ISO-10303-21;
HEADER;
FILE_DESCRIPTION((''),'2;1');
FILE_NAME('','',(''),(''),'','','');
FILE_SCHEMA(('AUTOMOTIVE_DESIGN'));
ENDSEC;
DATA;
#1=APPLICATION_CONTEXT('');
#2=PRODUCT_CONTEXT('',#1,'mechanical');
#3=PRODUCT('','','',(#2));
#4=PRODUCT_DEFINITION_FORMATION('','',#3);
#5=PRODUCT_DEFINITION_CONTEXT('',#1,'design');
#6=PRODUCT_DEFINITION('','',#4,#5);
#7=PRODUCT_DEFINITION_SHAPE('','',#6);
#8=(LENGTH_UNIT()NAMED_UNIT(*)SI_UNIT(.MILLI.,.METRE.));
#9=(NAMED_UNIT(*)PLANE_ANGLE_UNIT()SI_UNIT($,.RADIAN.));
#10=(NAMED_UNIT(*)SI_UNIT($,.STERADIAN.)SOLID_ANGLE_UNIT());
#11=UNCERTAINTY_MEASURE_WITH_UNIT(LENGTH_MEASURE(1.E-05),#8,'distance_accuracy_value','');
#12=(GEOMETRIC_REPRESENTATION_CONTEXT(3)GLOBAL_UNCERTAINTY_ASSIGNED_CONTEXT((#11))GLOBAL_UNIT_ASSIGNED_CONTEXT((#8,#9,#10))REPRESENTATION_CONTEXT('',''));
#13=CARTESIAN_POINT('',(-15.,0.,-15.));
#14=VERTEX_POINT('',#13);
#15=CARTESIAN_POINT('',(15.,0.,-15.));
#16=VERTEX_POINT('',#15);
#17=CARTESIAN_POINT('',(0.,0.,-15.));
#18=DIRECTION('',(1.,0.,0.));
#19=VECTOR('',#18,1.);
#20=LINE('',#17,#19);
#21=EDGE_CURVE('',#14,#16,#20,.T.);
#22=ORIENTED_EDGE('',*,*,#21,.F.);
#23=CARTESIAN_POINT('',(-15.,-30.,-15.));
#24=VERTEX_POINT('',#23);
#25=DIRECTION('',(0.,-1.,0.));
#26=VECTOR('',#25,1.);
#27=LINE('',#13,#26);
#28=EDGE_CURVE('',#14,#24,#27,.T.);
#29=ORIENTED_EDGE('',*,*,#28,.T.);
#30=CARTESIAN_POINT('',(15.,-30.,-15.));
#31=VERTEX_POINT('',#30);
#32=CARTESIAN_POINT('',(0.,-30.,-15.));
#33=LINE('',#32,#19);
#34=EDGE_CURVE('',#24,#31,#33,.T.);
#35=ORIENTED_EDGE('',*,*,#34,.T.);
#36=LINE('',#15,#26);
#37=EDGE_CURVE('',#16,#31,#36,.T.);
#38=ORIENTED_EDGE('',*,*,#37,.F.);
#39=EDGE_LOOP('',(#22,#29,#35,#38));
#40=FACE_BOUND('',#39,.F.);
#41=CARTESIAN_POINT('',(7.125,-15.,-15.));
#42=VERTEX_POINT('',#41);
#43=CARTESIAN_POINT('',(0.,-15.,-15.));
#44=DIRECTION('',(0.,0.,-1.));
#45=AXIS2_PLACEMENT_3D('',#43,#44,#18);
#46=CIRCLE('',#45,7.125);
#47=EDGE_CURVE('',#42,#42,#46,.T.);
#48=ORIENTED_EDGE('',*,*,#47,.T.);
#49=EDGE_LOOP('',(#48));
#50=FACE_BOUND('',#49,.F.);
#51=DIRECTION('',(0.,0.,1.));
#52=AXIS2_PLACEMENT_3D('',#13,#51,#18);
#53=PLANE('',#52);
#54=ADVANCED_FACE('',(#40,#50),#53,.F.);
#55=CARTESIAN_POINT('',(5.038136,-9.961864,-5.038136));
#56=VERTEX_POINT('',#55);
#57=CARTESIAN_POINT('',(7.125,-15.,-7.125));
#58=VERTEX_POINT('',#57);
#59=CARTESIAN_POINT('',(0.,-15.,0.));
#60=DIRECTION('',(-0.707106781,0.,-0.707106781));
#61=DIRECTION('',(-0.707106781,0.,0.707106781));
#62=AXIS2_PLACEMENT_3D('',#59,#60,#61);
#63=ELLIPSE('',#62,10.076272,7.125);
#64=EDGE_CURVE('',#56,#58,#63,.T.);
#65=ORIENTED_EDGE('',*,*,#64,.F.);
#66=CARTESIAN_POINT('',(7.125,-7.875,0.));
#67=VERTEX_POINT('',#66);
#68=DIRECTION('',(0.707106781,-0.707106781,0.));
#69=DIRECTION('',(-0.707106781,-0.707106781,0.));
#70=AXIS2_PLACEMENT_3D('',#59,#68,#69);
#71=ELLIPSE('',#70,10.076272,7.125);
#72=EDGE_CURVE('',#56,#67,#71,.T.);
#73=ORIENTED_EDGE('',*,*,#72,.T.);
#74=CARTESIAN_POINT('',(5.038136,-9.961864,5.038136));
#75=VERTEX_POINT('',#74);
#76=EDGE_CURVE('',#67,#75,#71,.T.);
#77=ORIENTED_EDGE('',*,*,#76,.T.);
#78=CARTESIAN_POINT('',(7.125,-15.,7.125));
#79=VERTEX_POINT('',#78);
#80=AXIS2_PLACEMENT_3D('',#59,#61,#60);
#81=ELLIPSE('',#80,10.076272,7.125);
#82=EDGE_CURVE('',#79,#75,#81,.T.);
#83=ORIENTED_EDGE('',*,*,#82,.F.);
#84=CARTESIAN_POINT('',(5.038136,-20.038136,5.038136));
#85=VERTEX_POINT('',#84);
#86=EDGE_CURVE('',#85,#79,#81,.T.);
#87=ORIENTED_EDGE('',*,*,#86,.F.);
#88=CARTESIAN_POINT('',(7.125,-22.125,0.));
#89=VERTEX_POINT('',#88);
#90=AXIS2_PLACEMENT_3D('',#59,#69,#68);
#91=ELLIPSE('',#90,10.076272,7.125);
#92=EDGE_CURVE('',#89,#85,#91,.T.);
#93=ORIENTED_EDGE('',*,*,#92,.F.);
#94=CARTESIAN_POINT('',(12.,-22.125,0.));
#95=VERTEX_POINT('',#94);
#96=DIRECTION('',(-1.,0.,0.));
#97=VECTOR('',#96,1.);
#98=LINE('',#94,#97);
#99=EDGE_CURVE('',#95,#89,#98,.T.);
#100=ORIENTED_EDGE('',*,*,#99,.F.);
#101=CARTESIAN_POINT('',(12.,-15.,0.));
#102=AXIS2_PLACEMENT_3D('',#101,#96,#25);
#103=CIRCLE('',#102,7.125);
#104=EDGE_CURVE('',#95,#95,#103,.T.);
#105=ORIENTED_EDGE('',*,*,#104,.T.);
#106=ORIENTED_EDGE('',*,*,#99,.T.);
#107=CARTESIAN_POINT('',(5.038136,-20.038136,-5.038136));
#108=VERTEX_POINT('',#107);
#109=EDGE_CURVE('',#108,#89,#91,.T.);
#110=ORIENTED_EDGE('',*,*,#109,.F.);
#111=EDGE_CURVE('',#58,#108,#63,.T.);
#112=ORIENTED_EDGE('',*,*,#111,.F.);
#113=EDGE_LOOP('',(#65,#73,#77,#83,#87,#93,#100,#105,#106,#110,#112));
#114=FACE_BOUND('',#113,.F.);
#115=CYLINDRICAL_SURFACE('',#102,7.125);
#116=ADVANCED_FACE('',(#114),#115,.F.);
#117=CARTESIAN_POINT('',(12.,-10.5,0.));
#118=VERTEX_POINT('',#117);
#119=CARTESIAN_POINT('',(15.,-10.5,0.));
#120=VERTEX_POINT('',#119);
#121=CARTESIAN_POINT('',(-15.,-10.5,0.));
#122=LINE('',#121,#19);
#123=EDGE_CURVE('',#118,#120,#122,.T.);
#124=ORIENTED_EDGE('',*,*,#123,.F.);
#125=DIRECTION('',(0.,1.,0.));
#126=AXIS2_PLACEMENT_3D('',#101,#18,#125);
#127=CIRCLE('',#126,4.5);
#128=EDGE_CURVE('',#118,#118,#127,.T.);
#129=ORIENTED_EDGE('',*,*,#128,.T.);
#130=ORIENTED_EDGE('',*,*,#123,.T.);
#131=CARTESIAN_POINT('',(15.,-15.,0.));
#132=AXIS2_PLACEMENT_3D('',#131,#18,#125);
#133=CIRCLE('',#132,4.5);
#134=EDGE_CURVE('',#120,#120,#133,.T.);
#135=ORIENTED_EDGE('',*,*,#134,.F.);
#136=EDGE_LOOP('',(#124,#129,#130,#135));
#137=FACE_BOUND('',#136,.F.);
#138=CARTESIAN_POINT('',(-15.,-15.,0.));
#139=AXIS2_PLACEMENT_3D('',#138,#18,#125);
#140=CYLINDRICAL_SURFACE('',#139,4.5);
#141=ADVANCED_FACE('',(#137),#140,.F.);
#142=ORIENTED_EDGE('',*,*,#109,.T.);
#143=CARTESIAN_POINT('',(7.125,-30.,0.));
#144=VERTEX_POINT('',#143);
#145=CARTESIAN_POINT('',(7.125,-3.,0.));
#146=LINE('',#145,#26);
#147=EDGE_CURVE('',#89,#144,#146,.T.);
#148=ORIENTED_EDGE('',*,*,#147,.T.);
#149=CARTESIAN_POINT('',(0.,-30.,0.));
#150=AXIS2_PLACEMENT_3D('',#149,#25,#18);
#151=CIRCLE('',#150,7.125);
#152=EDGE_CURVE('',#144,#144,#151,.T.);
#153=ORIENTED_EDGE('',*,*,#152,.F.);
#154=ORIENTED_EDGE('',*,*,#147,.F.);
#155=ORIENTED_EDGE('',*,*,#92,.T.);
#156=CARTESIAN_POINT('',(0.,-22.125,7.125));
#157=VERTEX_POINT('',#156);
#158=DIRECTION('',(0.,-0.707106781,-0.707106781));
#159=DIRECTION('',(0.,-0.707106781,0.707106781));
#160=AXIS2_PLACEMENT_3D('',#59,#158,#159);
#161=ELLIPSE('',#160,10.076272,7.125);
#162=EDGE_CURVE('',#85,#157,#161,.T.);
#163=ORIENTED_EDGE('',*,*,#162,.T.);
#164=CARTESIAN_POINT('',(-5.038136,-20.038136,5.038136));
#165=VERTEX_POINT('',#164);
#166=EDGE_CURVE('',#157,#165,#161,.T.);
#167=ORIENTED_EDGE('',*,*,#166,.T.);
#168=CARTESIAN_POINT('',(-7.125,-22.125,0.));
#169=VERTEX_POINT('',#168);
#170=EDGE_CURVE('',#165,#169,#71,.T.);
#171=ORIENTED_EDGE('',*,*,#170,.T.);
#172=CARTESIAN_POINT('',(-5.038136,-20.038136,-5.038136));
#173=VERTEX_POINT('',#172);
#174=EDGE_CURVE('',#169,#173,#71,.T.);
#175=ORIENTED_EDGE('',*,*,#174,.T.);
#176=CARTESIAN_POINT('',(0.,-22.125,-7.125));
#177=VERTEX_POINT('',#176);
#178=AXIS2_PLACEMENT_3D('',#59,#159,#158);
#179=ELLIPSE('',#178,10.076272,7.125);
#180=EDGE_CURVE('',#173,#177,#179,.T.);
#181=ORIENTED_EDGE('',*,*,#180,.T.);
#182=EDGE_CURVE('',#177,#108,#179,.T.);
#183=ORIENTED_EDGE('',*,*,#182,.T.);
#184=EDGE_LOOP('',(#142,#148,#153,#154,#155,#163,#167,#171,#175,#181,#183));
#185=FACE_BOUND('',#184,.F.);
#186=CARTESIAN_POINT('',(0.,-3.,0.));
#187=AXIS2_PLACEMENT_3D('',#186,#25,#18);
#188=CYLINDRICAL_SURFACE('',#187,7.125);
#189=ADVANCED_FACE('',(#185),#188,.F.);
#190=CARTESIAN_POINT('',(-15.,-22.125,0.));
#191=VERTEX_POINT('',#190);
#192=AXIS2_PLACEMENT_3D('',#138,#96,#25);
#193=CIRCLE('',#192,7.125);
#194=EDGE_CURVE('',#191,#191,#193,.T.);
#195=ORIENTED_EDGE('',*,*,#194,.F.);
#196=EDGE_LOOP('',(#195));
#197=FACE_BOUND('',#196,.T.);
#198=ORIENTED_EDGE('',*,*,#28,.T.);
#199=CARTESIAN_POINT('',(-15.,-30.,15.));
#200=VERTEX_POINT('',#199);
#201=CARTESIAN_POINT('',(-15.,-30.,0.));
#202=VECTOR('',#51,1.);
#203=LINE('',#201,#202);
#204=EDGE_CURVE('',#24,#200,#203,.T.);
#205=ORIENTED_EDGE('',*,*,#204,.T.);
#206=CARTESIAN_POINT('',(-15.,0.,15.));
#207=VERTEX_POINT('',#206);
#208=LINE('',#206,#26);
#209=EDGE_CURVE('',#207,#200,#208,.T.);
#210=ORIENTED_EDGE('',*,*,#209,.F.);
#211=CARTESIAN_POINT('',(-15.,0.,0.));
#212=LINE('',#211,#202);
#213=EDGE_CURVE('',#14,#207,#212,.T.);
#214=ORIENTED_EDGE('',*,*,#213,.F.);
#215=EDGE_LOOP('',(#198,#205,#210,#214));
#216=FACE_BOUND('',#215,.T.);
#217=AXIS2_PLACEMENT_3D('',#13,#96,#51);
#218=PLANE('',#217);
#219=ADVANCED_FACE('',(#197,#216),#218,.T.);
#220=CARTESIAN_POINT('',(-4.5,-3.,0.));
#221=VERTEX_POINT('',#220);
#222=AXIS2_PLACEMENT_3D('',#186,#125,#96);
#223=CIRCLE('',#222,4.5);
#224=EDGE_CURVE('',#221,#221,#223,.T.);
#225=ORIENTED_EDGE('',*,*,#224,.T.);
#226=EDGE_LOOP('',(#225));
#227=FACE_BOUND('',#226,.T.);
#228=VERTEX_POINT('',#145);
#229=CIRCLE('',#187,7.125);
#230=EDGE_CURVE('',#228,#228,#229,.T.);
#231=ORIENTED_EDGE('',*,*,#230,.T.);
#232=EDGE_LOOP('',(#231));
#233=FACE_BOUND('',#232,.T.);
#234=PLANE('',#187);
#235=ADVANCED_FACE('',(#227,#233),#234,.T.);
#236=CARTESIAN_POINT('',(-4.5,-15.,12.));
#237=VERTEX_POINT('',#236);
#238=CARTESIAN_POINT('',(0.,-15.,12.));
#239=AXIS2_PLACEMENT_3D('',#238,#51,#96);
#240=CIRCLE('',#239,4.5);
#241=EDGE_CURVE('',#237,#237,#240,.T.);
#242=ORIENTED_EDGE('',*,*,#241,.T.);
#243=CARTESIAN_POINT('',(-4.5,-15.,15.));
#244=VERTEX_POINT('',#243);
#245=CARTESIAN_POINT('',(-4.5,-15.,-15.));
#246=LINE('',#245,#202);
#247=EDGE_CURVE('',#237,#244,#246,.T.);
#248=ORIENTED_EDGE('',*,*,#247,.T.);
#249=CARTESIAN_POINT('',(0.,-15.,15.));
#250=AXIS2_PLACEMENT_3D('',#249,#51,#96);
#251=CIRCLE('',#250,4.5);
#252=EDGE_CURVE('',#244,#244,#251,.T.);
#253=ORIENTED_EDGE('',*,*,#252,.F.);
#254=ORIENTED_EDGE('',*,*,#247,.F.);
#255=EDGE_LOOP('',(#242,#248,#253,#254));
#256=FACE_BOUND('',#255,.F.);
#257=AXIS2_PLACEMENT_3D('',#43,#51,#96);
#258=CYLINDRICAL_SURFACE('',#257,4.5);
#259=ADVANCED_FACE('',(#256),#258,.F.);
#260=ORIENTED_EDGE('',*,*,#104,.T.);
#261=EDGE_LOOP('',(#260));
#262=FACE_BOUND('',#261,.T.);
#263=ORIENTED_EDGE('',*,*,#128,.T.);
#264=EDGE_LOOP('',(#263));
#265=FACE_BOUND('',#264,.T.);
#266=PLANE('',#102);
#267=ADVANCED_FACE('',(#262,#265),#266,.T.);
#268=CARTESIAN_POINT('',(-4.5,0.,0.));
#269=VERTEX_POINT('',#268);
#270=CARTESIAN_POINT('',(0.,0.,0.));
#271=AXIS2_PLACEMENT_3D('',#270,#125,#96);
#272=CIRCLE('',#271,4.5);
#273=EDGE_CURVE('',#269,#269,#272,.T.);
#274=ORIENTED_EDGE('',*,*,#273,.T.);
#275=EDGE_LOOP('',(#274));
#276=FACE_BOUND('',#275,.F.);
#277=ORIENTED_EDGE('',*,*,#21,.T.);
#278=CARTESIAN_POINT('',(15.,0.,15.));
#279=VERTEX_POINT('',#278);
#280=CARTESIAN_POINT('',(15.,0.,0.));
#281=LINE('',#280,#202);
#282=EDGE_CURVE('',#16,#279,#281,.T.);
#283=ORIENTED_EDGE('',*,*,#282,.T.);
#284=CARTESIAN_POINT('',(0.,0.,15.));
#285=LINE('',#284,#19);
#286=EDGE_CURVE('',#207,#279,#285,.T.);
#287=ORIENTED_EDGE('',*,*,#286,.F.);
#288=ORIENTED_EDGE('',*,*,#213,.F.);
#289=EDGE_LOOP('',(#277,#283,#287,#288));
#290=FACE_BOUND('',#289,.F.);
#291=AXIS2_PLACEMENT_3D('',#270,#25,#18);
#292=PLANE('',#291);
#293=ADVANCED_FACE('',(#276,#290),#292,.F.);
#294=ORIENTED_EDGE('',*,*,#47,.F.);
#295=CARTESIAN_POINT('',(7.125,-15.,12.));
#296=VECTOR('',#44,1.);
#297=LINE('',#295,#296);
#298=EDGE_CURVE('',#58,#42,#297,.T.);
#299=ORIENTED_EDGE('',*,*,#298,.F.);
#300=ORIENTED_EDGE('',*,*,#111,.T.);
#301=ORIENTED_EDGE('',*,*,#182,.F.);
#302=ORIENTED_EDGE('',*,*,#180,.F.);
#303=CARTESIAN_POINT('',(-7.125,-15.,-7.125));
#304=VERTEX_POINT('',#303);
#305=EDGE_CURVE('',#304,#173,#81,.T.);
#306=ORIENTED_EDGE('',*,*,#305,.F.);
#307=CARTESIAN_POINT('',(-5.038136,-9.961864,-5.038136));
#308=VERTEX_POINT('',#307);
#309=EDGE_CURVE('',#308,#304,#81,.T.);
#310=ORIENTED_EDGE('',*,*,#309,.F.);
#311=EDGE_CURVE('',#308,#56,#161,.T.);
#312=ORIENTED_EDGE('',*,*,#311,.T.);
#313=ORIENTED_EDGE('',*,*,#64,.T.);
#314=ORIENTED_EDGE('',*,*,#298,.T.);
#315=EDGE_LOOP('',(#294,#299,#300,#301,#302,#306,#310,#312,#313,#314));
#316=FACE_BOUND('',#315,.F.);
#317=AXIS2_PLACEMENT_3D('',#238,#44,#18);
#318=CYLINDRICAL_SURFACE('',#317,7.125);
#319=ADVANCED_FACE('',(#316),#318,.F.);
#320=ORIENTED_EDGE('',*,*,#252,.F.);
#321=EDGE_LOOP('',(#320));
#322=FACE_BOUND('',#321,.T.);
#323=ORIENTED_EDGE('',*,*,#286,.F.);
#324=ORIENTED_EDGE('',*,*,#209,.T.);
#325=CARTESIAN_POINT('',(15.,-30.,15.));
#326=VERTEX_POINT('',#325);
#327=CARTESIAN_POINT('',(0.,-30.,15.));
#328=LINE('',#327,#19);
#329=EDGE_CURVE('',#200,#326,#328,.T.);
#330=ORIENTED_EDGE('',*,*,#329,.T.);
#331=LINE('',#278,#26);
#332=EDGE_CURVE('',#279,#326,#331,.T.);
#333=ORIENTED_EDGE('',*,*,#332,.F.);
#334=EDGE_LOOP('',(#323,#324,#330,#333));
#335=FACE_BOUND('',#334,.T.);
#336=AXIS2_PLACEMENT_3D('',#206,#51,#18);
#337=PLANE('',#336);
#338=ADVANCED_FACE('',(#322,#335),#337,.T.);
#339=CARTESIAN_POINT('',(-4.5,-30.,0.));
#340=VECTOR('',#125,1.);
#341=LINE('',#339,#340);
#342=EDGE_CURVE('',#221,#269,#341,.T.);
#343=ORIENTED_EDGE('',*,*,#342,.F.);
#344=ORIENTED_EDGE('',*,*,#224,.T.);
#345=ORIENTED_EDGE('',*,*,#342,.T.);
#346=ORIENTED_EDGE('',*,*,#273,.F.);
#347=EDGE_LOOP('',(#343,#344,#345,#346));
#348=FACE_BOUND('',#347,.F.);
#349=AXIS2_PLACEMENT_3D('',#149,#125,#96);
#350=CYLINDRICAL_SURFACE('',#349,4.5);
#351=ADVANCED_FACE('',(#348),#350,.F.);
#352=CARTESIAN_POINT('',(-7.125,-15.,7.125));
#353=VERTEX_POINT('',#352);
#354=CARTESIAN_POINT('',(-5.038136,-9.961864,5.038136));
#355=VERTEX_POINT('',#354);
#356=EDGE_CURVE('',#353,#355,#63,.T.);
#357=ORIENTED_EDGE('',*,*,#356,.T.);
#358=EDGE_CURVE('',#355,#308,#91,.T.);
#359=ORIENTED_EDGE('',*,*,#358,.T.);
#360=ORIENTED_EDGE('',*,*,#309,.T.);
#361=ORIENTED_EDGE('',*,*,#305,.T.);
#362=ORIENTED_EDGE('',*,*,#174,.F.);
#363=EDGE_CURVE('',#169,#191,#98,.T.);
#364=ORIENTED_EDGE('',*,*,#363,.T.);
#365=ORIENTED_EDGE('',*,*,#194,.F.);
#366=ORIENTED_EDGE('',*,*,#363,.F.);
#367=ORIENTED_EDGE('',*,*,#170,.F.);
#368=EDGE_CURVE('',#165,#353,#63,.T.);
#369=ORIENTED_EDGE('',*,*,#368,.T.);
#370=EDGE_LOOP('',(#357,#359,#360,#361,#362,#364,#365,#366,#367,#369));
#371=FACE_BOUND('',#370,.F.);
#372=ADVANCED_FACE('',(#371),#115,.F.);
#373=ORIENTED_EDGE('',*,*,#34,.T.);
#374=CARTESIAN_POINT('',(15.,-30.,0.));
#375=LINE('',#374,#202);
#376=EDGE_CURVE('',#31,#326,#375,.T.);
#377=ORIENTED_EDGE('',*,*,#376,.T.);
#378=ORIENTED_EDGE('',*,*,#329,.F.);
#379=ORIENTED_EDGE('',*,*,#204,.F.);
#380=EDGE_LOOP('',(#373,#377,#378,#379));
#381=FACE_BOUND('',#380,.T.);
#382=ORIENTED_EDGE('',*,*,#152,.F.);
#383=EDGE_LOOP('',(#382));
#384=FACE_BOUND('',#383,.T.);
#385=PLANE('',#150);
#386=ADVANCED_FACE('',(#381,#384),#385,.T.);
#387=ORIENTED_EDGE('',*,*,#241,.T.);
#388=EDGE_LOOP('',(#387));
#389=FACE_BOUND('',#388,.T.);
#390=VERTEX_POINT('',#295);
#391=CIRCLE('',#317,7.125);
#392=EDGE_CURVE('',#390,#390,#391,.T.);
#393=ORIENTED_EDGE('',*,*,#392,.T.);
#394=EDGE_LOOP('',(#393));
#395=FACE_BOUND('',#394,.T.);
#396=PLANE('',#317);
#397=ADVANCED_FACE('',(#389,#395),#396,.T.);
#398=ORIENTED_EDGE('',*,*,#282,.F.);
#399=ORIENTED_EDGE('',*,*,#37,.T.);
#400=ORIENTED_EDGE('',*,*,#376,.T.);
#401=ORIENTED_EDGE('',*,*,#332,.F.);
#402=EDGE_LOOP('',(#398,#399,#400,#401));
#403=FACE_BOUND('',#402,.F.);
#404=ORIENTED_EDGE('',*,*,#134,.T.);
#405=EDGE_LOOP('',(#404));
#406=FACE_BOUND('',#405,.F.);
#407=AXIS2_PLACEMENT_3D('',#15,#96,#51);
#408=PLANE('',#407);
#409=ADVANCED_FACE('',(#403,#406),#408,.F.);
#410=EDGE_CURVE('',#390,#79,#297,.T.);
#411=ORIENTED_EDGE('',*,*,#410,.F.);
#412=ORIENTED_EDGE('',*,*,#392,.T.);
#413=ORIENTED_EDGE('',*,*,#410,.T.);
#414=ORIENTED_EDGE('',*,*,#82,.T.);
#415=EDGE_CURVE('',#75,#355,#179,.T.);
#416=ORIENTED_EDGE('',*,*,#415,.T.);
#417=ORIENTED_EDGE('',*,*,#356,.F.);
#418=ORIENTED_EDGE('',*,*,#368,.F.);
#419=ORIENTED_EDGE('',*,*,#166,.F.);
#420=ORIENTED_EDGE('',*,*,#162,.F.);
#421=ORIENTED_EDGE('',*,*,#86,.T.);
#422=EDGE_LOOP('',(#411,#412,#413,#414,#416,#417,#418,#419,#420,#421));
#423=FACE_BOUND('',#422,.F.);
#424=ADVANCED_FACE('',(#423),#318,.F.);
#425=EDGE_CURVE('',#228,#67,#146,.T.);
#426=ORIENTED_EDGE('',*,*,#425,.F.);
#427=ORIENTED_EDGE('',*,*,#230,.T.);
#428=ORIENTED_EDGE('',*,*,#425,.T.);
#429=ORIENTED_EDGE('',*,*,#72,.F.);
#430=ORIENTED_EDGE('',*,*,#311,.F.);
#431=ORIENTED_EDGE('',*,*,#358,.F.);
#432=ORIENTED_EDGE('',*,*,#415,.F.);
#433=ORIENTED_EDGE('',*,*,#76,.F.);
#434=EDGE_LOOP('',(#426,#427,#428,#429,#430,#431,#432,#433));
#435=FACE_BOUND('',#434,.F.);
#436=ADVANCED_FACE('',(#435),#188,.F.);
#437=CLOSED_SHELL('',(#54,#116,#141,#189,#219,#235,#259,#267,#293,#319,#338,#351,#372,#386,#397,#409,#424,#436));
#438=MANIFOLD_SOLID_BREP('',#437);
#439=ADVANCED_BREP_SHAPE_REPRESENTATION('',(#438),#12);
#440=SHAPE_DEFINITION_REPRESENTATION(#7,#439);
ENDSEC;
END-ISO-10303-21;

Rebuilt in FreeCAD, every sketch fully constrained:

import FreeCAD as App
import Part
import Sketcher

V = App.Vector
Q = App.Units.Quantity

doc = App.newDocument("Part")
body = doc.addObject("PartDesign::Body", "Body")

# Sketch on XZ plane
sketch1 = body.newObject("Sketcher::SketchObject", "Sketch")
sketch1.AttachmentSupport = (doc.getObject("XZ_Plane"), [""])
sketch1.MapMode = "FlatFace"
sketch1.addGeometry(Part.LineSegment(V(-15, 15, 0), V(-15, -15, 0)), False)
sketch1.addGeometry(Part.LineSegment(V(-15, -15, 0), V(15, -15, 0)), False)
sketch1.addGeometry(Part.LineSegment(V(15, -15, 0), V(15, 15, 0)), False)
sketch1.addGeometry(Part.LineSegment(V(15, 15, 0), V(-15, 15, 0)), False)
sketch1.addConstraint(Sketcher.Constraint("Coincident", 0, 2, 1, 1))
sketch1.addConstraint(Sketcher.Constraint("Coincident", 1, 2, 2, 1))
sketch1.addConstraint(Sketcher.Constraint("Coincident", 2, 2, 3, 1))
sketch1.addConstraint(Sketcher.Constraint("Coincident", 3, 2, 0, 1))
sketch1.addConstraint(Sketcher.Constraint("Vertical", 0))
sketch1.addConstraint(Sketcher.Constraint("Horizontal", 1))
sketch1.addConstraint(Sketcher.Constraint("Vertical", 2))
sketch1.addConstraint(Sketcher.Constraint("Horizontal", 3))
sketch1.addConstraint(Sketcher.Constraint("Symmetric", 0, 2, 2, 2, -1, 1))
sketch1.addConstraint(Sketcher.Constraint("Equal", 3, 0))
sketch1.addConstraint(Sketcher.Constraint("DistanceX", 1, 1, 1, 2, Q("30 mm")))
pad1 = body.newObject("PartDesign::Pad", "Pad")
pad1.Profile = sketch1
pad1.Length = 30

# Sketch on XZ plane
sketch2 = body.newObject("Sketcher::SketchObject", "Sketch001")
sketch2.AttachmentSupport = (doc.getObject("XZ_Plane"), [""])
sketch2.MapMode = "FlatFace"
sketch2.AttachmentOffset = App.Placement(V(0, 0, 30), App.Rotation())
sketch2.addGeometry(Part.Circle(V(0, 0, 0), V(0, 0, 1), 4.5), False)
sketch2.addConstraint(Sketcher.Constraint("Coincident", 0, 3, -1, 1))
sketch2.addConstraint(Sketcher.Constraint("Diameter", 0, Q("9 mm")))
doc.recompute()
hole = body.newObject("PartDesign::Hole", "Hole")
hole.Profile = sketch2
hole.ThreadType = "None"
hole.Diameter = 9
hole.DepthType = "ThroughAll"
hole.HoleCutType = "Counterbore"
hole.HoleCutDiameter = 14.25
hole.HoleCutDepth = 27

# Sketch on YZ plane
sketch3 = body.newObject("Sketcher::SketchObject", "Sketch002")
sketch3.AttachmentSupport = (doc.getObject("YZ_Plane"), [""])
sketch3.MapMode = "FlatFace"
sketch3.AttachmentOffset = App.Placement(V(0, 0, -15), App.Rotation())
sketch3.addGeometry(Part.Circle(V(-15, 0, 0), V(0, 0, 1), 4.5), False)
sketch3.addConstraint(Sketcher.Constraint("PointOnObject", 0, 3, -1))
sketch3.addConstraint(Sketcher.Constraint("Diameter", 0, Q("9 mm")))
sketch3.addConstraint(Sketcher.Constraint("DistanceX", 0, 3, -1, 1, Q("15 mm")))
doc.recompute()
hole2 = body.newObject("PartDesign::Hole", "Hole001")
hole2.Profile = sketch3
hole2.ThreadType = "None"
hole2.Diameter = 9
hole2.DepthType = "ThroughAll"
hole2.HoleCutType = "Counterbore"
hole2.HoleCutDiameter = 14.25
hole2.HoleCutDepth = 27
hole2.Reversed = True

# Sketch on XY plane
sketch4 = body.newObject("Sketcher::SketchObject", "Sketch003")
sketch4.AttachmentSupport = (doc.getObject("XY_Plane"), [""])
sketch4.MapMode = "FlatFace"
sketch4.AttachmentOffset = App.Placement(V(0, 0, -15), App.Rotation())
sketch4.addGeometry(Part.Circle(V(0, -15, 0), V(0, 0, 1), 4.5), False)
sketch4.addConstraint(Sketcher.Constraint("PointOnObject", 0, 3, -2))
sketch4.addConstraint(Sketcher.Constraint("Diameter", 0, Q("9 mm")))
sketch4.addConstraint(Sketcher.Constraint("DistanceY", 0, 3, -1, 1, Q("15 mm")))
doc.recompute()
hole3 = body.newObject("PartDesign::Hole", "Hole002")
hole3.Profile = sketch4
hole3.ThreadType = "None"
hole3.Diameter = 9
hole3.DepthType = "ThroughAll"
hole3.HoleCutType = "Counterbore"
hole3.HoleCutDiameter = 14.25
hole3.HoleCutDepth = 27
hole3.Reversed = True

doc.recompute()
